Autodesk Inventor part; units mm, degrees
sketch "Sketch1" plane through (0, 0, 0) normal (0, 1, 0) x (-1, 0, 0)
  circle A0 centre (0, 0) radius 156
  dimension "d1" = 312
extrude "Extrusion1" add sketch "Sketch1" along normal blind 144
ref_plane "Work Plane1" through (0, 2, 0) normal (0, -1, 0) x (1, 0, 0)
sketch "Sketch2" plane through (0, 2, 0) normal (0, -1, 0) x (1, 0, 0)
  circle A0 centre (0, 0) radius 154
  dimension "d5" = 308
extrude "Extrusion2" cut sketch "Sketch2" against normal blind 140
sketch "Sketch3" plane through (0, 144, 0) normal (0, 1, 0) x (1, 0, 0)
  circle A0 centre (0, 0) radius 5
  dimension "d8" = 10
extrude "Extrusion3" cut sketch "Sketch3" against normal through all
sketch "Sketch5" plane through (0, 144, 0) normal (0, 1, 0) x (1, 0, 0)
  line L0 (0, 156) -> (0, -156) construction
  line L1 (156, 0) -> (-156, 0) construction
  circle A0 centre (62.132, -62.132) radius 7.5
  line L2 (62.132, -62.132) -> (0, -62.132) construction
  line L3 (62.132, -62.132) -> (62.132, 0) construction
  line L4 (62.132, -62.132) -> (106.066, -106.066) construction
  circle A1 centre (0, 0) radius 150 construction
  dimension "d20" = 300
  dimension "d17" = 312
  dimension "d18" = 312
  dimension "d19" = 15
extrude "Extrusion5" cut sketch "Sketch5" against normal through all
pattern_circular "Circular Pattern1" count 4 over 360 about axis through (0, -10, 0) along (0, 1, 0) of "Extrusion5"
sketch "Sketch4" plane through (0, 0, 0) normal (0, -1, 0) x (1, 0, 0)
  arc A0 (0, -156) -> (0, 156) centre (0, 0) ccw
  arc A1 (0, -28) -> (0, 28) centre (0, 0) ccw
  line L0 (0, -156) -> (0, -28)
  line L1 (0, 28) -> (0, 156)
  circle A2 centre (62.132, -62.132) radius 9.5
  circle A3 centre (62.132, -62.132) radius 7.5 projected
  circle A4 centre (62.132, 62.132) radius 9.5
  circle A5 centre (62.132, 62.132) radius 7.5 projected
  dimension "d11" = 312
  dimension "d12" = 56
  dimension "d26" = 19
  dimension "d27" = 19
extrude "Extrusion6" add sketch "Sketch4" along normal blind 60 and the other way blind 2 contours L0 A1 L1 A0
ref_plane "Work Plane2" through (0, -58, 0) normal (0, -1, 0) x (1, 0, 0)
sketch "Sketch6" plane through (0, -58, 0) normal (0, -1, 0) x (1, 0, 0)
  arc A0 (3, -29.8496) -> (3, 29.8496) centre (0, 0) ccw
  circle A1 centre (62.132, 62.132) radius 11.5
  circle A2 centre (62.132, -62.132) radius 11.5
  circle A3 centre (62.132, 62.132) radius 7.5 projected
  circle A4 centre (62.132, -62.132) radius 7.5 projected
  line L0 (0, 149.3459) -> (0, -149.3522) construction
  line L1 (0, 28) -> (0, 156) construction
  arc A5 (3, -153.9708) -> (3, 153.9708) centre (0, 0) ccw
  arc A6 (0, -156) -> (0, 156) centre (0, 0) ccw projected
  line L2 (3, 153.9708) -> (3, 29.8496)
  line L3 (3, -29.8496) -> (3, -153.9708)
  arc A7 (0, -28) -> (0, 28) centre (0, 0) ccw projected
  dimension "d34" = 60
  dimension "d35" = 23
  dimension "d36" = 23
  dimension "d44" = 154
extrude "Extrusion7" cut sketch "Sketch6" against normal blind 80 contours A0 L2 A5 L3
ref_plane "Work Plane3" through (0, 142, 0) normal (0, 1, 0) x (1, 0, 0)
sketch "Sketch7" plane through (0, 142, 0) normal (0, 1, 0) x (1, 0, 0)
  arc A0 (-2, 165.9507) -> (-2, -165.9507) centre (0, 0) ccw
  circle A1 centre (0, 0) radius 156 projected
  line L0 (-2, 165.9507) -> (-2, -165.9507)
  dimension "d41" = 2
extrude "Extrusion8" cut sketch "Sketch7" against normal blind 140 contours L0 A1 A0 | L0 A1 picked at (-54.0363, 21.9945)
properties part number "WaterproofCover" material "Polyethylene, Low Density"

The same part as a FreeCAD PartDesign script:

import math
import FreeCAD as App
import Part
import Sketcher

V = App.Vector

doc = App.newDocument("Part")
body = doc.addObject("PartDesign::Body", "Body")

# Sketch on XZ plane
sketch1 = body.newObject("Sketcher::SketchObject", "Sketch")
sketch1.AttachmentSupport = (doc.getObject("XZ_Plane"), [""])
sketch1.MapMode = "FlatFace"
sketch1.addGeometry(Part.Circle(V(0, 0, 0), V(0, 0, 1), 156), False)
sketch1.addConstraint([
    Sketcher.Constraint("Coincident", 0, 3, -1, 1),
    Sketcher.Constraint("Diameter", 0, 312.0),
])
pad1 = body.newObject("PartDesign::Pad", "Pad")
pad1.Profile = sketch1
pad1.Length = 144
pad1.Reversed = True

# Sketch on XZ plane
sketch2 = body.newObject("Sketcher::SketchObject", "Sketch001")
sketch2.AttachmentSupport = (doc.getObject("XZ_Plane"), [""])
sketch2.MapMode = "FlatFace"
sketch2.AttachmentOffset = App.Placement(V(0, 0, -2), App.Rotation())
sketch2.addGeometry(Part.Circle(V(0, 0, 0), V(0, 0, 1), 154), False)
sketch2.addConstraint([
    Sketcher.Constraint("Coincident", 0, 3, -1, 1),
    Sketcher.Constraint("Diameter", 0, 308.0),
])
pocket1 = body.newObject("PartDesign::Pocket", "Pocket")
pocket1.Profile = sketch2
pocket1.Length = 140

# Sketch on XZ plane
sketch3 = body.newObject("Sketcher::SketchObject", "Sketch002")
sketch3.AttachmentSupport = (doc.getObject("XZ_Plane"), [""])
sketch3.MapMode = "FlatFace"
sketch3.AttachmentOffset = App.Placement(V(0, 0, -144), App.Rotation())
sketch3.addGeometry(Part.Circle(V(0, 0, 0), V(0, 0, 1), 5), False)
sketch3.addConstraint([
    Sketcher.Constraint("Coincident", 0, 3, -1, 1),
    Sketcher.Constraint("Diameter", 0, 10.0),
])
pocket2 = body.newObject("PartDesign::Pocket", "Pocket001")
pocket2.Profile = sketch3
pocket2.Type = "ThroughAll"
pocket2.Reversed = True

# Sketch on XZ plane
sketch4 = body.newObject("Sketcher::SketchObject", "Sketch003")
sketch4.AttachmentSupport = (doc.getObject("XZ_Plane"), [""])
sketch4.MapMode = "FlatFace"
sketch4.AttachmentOffset = App.Placement(V(0, 0, -144), App.Rotation())
sketch4.addGeometry(Part.Circle(V(62, 62, 0), V(0, 0, 1), 8), False)
sketch4.addConstraint([
    Sketcher.Constraint("Diameter", 0, 15.0),
    Sketcher.Constraint("DistanceX", -1, 1, 0, 3, 62.132),
    Sketcher.Constraint("DistanceY", -1, 1, 0, 3, 62.132),
])
pocket3 = body.newObject("PartDesign::Pocket", "Pocket002")
pocket3.Profile = sketch4
pocket3.Type = "ThroughAll"
pocket3.Reversed = True
doc.recompute()

polarpattern = body.newObject("PartDesign::PolarPattern", "PolarPattern")
polarpattern.Originals = [pocket3]
polarpattern.Axis = (doc.getObject("Y_Axis"), [""])
polarpattern.Angle = 360
polarpattern.Occurrences = 4
body.Tip = polarpattern

# Sketch on XZ plane
sketch5 = body.newObject("Sketcher::SketchObject", "Sketch004")
sketch5.AttachmentSupport = (doc.getObject("XZ_Plane"), [""])
sketch5.MapMode = "FlatFace"
sketch5.addGeometry([
    Part.LineSegment(V(0, -28, 0), V(0, -156, 0)),  # 0
    Part.ArcOfCircle(Part.Circle(V(0, 0, 0), V(0, 0, 1), 156), math.radians(-90), math.radians(90)),  # 1
    Part.LineSegment(V(0, 156, 0), V(0, 28, 0)),  # 2
    Part.ArcOfCircle(Part.Circle(V(0, 0, 0), V(0, 0, 1), 28), math.radians(-90), math.radians(90)),  # 3
    Part.Circle(V(62, -62, 0), V(0, 0, 1), 10),  # 4
    Part.Circle(V(62, 62, 0), V(0, 0, 1), 10),  # 5
], False)
sketch5.addConstraint([
    Sketcher.Constraint("Coincident", 0, 2, 1, 1),
    Sketcher.Constraint("Coincident", 1, 2, 2, 1),
    Sketcher.Constraint("Coincident", 2, 2, 3, 2),
    Sketcher.Constraint("Coincident", 3, 1, 0, 1),
    Sketcher.Constraint("Vertical", 0),
    Sketcher.Constraint("Vertical", 2),
    Sketcher.Constraint("Coincident", 1, 3, -1, 1),
    Sketcher.Constraint("Coincident", 3, 3, -1, 1),
    Sketcher.Constraint("Equal", 4, 5),
    Sketcher.Constraint("Symmetric", 4, 3, 5, 3, -1),
    Sketcher.Constraint("PointOnObject", 0, 2, -2),
    Sketcher.Constraint("PointOnObject", 1, 2, -2),
    Sketcher.Constraint("Diameter", 4, 19.0),
    Sketcher.Constraint("Radius", 1, 156.0),
    Sketcher.Constraint("Radius", 3, 28.0),
    Sketcher.Constraint("DistanceX", -1, 1, 4, 3, 62.132),
    Sketcher.Constraint("DistanceY", 4, 3, -1, 1, 62.132),
])
pad2 = body.newObject("PartDesign::Pad", "Pad001")
pad2.Profile = sketch5
pad2.Type = "TwoLengths"
pad2.Length = 60
pad2.Length2 = 2

# Sketch on XZ plane
sketch6 = body.newObject("Sketcher::SketchObject", "Sketch005")
sketch6.AttachmentSupport = (doc.getObject("XZ_Plane"), [""])
sketch6.MapMode = "FlatFace"
sketch6.AttachmentOffset = App.Placement(V(0, 0, 58), App.Rotation())
sketch6.addGeometry([
    Part.ArcOfCircle(Part.Circle(V(0, 0, 0), V(0, 0, 1), 30), math.radians(-84), math.radians(84)),  # 0
    Part.LineSegment(V(3, -30, 0), V(3, -154, 0)),  # 1
    Part.ArcOfCircle(Part.Circle(V(0, 0, 0), V(0, 0, 1), 154), math.radians(-89), math.radians(89)),  # 2
    Part.LineSegment(V(3, 154, 0), V(3, 30, 0)),  # 3
    Part.Circle(V(62, -62, 0), V(0, 0, 1), 12),  # 4
    Part.Circle(V(62, 62, 0), V(0, 0, 1), 12),  # 5
], False)
sketch6.addConstraint([
    Sketcher.Constraint("Coincident", 0, 1, 1, 1),
    Sketcher.Constraint("Coincident", 1, 2, 2, 1),
    Sketcher.Constraint("Coincident", 2, 2, 3, 1),
    Sketcher.Constraint("Coincident", 3, 2, 0, 2),
    Sketcher.Constraint("Vertical", 1),
    Sketcher.Constraint("Vertical", 3),
    Sketcher.Constraint("Coincident", 0, 3, -1, 1),
    Sketcher.Constraint("Coincident", 2, 3, -1, 1),
    Sketcher.Constraint("Equal", 4, 5),
    Sketcher.Constraint("Symmetric", 4, 3, 5, 3, -1),
    Sketcher.Constraint("Vertical", 1, 2, 2, 2),
    Sketcher.Constraint("Diameter", 4, 23.0),
    Sketcher.Constraint("Radius", 0, 30.0),
    Sketcher.Constraint("Radius", 2, 154.0),
    Sketcher.Constraint("DistanceX", -1, 1, 0, 1, 3.0),
    Sketcher.Constraint("DistanceX", -1, 1, 4, 3, 62.132),
    Sketcher.Constraint("DistanceY", 4, 3, -1, 1, 62.132),
])
pocket4 = body.newObject("PartDesign::Pocket", "Pocket003")
pocket4.Profile = sketch6
pocket4.Length = 80

# Sketch on XZ plane
sketch7 = body.newObject("Sketcher::SketchObject", "Sketch006")
sketch7.AttachmentSupport = (doc.getObject("XZ_Plane"), [""])
sketch7.MapMode = "FlatFace"
sketch7.AttachmentOffset = App.Placement(V(0, 0, -142), App.Rotation())
sketch7.addGeometry([
    Part.ArcOfCircle(Part.Circle(V(0, 0, 0), V(0, 0, 1), 166), math.radians(91), math.radians(269)),
    Part.LineSegment(V(-2, 166, 0), V(-2, -166, 0)),
], False)
sketch7.addConstraint([
    Sketcher.Constraint("Coincident", 0, 1, 1, 1),
    Sketcher.Constraint("Coincident", 1, 2, 0, 2),
    Sketcher.Constraint("Vertical", 1),
    Sketcher.Constraint("Coincident", 0, 3, -1, 1),
    Sketcher.Constraint("DistanceX", 0, 1, -1, 1, 2.0),
    Sketcher.Constraint("Radius", 0, 165.9628),
])
pocket5 = body.newObject("PartDesign::Pocket", "Pocket004")
pocket5.Profile = sketch7
pocket5.Length = 140
pocket5.Reversed = True

doc.recompute()
